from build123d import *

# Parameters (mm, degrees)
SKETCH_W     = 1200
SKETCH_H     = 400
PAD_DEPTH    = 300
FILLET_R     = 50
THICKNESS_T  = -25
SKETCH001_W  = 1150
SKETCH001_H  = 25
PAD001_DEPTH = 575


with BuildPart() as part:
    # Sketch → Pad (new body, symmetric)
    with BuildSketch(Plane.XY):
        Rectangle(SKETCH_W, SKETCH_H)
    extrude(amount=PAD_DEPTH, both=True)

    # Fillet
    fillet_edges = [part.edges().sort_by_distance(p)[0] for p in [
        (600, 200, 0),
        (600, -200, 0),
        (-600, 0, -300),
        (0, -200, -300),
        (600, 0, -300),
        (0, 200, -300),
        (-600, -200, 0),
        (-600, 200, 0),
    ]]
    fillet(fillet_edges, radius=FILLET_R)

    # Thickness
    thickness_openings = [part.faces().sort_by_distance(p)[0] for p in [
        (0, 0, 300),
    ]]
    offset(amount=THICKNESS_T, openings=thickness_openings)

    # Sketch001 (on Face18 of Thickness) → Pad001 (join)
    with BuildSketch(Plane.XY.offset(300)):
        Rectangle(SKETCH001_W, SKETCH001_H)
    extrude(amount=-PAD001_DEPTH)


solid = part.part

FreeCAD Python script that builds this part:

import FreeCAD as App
import Part
import Sketcher

V = App.Vector


def edges_at(feature, points):
    """Names of the edges that pass closest to the given points."""
    edges = feature.Shape.Edges
    near = lambda p: min(range(len(edges)), key=lambda i: edges[i].distToShape(Part.Vertex(*p))[0])
    return sorted({f"Edge{near(p) + 1}" for p in points})


def faces_at(feature, points):
    """Names of the faces that lie closest to the given points."""
    faces = feature.Shape.Faces
    near = lambda p: min(range(len(faces)), key=lambda i: faces[i].distToShape(Part.Vertex(*p))[0])
    return sorted({f"Face{near(p) + 1}" for p in points})


def add_polygon(sketch, points):
    """Adds a closed chain of lines whose ends are joined by coincident constraints."""
    first, n = sketch.GeometryCount, len(points)
    for a, b in zip(points, points[1:] + points[:1]):
        sketch.addGeometry(Part.LineSegment(App.Vector(*a, 0), App.Vector(*b, 0)), False)
    for i in range(n):
        sketch.addConstraint(Sketcher.Constraint("Coincident", first + i, 2, first + (i + 1) % n, 1))

doc = App.newDocument("Part")
body = doc.addObject("PartDesign::Body", "Body")

# Sketch on XY plane
sketch1 = body.newObject("Sketcher::SketchObject", "Sketch")
sketch1.AttachmentSupport = (doc.getObject("XY_Plane"), [""])
sketch1.MapMode = "FlatFace"
add_polygon(sketch1, [(-600, 200), (-600, -200), (600, -200), (600, 200)])  # lines 0-3
sketch1.addConstraint(Sketcher.Constraint("Vertical", 0))
sketch1.addConstraint(Sketcher.Constraint("Horizontal", 1))
sketch1.addConstraint(Sketcher.Constraint("Vertical", 2))
sketch1.addConstraint(Sketcher.Constraint("Horizontal", 3))
sketch1.addConstraint(Sketcher.Constraint("Symmetric", 0, 2, 2, 2, -1, 1))
sketch1.addConstraint(Sketcher.Constraint("DistanceX", 1, 1, 1, 2, 1200.0))
sketch1.addConstraint(Sketcher.Constraint("DistanceY", 0, 2, 0, 1, 400.0))
pad1 = body.newObject("PartDesign::Pad", "Pad")
pad1.Profile = sketch1
pad1.Length = 600
pad1.Midplane = True
doc.recompute()

fillet = body.newObject("PartDesign::Fillet", "Fillet")
fillet.Base = (pad1, edges_at(pad1, [
    (600, 200, 0),
    (600, -200, 0),
    (-600, 0, -300),
    (0, -200, -300),
    (600, 0, -300),
    (0, 200, -300),
    (-600, -200, 0),
    (-600, 200, 0),
]))
fillet.Radius = 50
doc.recompute()

thickness = body.newObject("PartDesign::Thickness", "Thickness")
thickness.Base = (fillet, faces_at(fillet, [(0, 0, 300)]))
thickness.Value = 25
thickness.Reversed = True
thickness.Join = "Arc"

# Sketch on XY plane
sketch2 = body.newObject("Sketcher::SketchObject", "Sketch001")
sketch2.AttachmentSupport = (doc.getObject("XY_Plane"), [""])
sketch2.MapMode = "FlatFace"
sketch2.AttachmentOffset = App.Placement(V(0, 0, 300), App.Rotation())
add_polygon(sketch2, [(-575, 12), (-575, -12), (575, -12), (575, 12)])  # lines 0-3
sketch2.addConstraint(Sketcher.Constraint("Vertical", 0))
sketch2.addConstraint(Sketcher.Constraint("Horizontal", 1))
sketch2.addConstraint(Sketcher.Constraint("Vertical", 2))
sketch2.addConstraint(Sketcher.Constraint("Horizontal", 3))
sketch2.addConstraint(Sketcher.Constraint("Symmetric", 0, 2, 2, 2, -1, 1))
sketch2.addConstraint(Sketcher.Constraint("DistanceX", 1, 1, 1, 2, 1150.0))
sketch2.addConstraint(Sketcher.Constraint("DistanceY", 0, 2, 0, 1, 25.0))
pad2 = body.newObject("PartDesign::Pad", "Pad001")
pad2.Profile = sketch2
pad2.Length = 575
pad2.Reversed = True

doc.recompute()
